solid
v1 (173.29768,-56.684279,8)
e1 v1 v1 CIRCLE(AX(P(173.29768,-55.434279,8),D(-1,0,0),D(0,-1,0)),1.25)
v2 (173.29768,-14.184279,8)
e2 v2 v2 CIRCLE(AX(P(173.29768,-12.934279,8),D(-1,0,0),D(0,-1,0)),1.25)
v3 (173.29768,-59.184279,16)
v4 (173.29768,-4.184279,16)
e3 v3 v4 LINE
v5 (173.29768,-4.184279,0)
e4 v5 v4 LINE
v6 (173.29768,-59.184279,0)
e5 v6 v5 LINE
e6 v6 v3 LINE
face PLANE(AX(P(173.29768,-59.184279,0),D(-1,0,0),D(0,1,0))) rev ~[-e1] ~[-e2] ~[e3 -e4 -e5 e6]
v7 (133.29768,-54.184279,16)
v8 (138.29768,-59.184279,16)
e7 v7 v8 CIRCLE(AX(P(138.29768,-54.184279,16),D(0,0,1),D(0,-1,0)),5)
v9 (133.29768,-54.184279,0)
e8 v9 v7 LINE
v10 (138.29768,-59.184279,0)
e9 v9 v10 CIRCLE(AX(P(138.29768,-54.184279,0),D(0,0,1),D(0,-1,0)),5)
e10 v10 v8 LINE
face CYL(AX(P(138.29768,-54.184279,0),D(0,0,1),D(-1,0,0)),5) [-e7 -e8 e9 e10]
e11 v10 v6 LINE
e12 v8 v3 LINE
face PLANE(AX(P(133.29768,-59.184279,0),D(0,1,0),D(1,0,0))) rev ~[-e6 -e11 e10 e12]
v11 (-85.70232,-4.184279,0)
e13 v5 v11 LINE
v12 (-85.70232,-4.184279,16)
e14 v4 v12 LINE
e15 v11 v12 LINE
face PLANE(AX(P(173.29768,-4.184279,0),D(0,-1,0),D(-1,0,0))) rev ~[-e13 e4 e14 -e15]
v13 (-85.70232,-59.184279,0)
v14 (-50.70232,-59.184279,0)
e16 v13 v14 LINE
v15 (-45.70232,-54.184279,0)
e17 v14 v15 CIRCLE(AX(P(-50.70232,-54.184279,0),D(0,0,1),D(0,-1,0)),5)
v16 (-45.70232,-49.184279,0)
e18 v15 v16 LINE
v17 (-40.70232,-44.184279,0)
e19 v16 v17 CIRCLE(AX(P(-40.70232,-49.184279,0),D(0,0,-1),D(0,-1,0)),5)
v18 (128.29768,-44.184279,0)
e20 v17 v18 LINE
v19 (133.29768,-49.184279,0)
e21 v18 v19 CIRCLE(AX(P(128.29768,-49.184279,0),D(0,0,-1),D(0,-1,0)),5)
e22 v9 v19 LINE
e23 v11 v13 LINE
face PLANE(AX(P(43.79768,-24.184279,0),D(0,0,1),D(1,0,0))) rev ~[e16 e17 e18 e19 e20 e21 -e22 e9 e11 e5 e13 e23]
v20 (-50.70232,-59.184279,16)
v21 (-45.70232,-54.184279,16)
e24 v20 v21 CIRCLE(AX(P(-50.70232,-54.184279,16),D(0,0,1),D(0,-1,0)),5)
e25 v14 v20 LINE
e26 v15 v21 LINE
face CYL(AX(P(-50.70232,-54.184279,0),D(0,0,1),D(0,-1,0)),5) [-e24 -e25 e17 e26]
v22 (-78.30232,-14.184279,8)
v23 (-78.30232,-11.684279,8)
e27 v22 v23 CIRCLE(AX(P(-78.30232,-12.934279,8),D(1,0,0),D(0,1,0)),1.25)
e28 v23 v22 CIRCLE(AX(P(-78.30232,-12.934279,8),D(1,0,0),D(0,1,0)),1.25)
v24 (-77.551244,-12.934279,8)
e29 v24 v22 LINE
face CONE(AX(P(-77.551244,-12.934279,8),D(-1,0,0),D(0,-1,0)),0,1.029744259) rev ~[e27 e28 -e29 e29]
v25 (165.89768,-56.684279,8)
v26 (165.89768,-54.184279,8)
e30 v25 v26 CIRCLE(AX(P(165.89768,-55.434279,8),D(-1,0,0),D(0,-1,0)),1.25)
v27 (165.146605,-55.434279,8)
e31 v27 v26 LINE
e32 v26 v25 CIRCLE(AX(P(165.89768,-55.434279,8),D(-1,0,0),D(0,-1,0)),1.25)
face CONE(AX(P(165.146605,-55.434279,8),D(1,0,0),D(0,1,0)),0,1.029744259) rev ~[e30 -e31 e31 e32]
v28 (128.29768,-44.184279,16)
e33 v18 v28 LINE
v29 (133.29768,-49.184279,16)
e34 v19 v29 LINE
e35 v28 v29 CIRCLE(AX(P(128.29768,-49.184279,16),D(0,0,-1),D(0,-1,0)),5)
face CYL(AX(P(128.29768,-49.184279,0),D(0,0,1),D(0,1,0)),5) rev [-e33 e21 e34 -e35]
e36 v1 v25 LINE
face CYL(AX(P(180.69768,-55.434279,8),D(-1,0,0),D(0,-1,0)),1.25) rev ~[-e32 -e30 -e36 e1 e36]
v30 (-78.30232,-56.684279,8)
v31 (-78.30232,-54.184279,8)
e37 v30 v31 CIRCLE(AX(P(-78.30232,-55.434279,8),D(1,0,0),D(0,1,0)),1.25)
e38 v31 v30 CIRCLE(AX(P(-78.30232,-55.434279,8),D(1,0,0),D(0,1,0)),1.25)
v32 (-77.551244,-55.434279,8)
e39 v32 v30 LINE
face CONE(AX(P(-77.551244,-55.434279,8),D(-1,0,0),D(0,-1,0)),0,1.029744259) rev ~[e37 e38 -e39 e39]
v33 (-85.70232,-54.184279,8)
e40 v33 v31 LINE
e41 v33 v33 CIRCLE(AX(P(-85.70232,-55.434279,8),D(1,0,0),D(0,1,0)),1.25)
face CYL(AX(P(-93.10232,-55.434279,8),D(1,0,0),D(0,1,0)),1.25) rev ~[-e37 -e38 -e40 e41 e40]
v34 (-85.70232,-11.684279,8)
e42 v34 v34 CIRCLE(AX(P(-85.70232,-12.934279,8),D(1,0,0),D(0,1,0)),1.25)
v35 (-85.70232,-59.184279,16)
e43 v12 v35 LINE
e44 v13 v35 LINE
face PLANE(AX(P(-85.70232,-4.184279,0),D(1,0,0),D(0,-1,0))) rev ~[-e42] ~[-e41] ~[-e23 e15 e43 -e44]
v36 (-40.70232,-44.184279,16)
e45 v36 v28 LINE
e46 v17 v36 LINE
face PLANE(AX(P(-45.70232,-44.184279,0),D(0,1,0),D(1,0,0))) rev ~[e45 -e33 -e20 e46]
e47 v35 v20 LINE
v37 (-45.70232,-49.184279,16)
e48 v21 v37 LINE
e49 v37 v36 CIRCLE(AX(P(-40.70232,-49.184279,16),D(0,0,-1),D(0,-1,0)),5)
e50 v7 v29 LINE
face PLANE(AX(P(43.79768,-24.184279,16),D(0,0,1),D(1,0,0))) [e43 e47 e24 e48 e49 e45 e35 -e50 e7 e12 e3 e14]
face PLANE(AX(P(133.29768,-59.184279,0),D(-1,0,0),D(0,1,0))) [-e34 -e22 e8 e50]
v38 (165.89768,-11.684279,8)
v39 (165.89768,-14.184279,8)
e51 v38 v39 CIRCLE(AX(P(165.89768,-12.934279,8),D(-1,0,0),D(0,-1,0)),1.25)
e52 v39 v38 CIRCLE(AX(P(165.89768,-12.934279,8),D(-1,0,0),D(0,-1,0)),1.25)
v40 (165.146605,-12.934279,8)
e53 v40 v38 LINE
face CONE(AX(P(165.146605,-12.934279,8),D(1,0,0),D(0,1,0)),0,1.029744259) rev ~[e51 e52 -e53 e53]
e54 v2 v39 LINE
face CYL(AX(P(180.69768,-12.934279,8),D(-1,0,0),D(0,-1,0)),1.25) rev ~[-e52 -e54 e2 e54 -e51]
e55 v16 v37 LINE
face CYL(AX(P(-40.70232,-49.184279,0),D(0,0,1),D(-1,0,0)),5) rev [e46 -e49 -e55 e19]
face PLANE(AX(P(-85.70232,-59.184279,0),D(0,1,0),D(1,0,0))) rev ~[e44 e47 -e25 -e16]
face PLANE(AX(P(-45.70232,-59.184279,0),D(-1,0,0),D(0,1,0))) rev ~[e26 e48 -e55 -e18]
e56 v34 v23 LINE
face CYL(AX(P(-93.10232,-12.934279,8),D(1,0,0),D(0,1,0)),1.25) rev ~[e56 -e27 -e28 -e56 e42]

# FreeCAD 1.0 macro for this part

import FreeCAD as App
import Part
import Sketcher


def edges_at(feature, points):
    """Names of the edges that pass closest to the given points."""
    edges = feature.Shape.Edges
    near = lambda p: min(range(len(edges)), key=lambda i: edges[i].distToShape(Part.Vertex(*p))[0])
    return sorted({f"Edge{near(p) + 1}" for p in points})

doc = App.newDocument("Part")
body = doc.addObject("PartDesign::Body", "Body")

# Sketch on XY plane
sketch1 = doc.addObject("Sketcher::SketchObject", "Sketch")
body.addObject(sketch1)
sketch1.AttachmentSupport = (doc.XY_Plane, [""])
sketch1.MapMode = "FlatFace"
sketch1.addGeometry(Part.LineSegment(App.Vector(173.29768, -4.184279, 0), App.Vector(-85.70232, -4.184279, 0)), False)
sketch1.addGeometry(Part.LineSegment(App.Vector(-85.70232, -4.184279, 0), App.Vector(-85.70232, -59.184279, 0)), False)
sketch1.addGeometry(Part.LineSegment(App.Vector(-85.70232, -59.184279, 0), App.Vector(-45.70232, -59.184279, 0)), False)
sketch1.addGeometry(Part.LineSegment(App.Vector(-45.70232, -59.184279, 0), App.Vector(-45.70232, -44.184279, 0)), False)
sketch1.addGeometry(Part.LineSegment(App.Vector(-45.70232, -44.184279, 0), App.Vector(133.29768, -44.184279, 0)), False)
sketch1.addGeometry(Part.LineSegment(App.Vector(133.29768, -44.184279, 0), App.Vector(133.29768, -59.184279, 0)), False)
sketch1.addGeometry(Part.LineSegment(App.Vector(133.29768, -59.184279, 0), App.Vector(173.29768, -59.184279, 0)), False)
sketch1.addGeometry(Part.LineSegment(App.Vector(173.29768, -59.184279, 0), App.Vector(173.29768, -4.184279, 0)), False)
sketch1.addConstraint(Sketcher.Constraint("Coincident", 0, 2, 1, 1))
sketch1.addConstraint(Sketcher.Constraint("Coincident", 1, 2, 2, 1))
sketch1.addConstraint(Sketcher.Constraint("Coincident", 2, 2, 3, 1))
sketch1.addConstraint(Sketcher.Constraint("Coincident", 3, 2, 4, 1))
sketch1.addConstraint(Sketcher.Constraint("Coincident", 4, 2, 5, 1))
sketch1.addConstraint(Sketcher.Constraint("Coincident", 5, 2, 6, 1))
sketch1.addConstraint(Sketcher.Constraint("Coincident", 6, 2, 7, 1))
sketch1.addConstraint(Sketcher.Constraint("Coincident", 7, 2, 0, 1))
sketch1.addConstraint(Sketcher.Constraint("Horizontal", 0))
sketch1.addConstraint(Sketcher.Constraint("Vertical", 1))
sketch1.addConstraint(Sketcher.Constraint("Horizontal", 2))
sketch1.addConstraint(Sketcher.Constraint("Vertical", 3))
sketch1.addConstraint(Sketcher.Constraint("Horizontal", 4))
sketch1.addConstraint(Sketcher.Constraint("Vertical", 5))
sketch1.addConstraint(Sketcher.Constraint("Horizontal", 6))
sketch1.addConstraint(Sketcher.Constraint("Vertical", 7))
sketch1.addConstraint(Sketcher.Constraint("Horizontal", 2, 2, 5, 2))
sketch1.addConstraint(Sketcher.Constraint("Equal", 2, 6))
sketch1.addConstraint(Sketcher.Constraint("DistanceX", 0, 2, 0, 1, 259.0))
sketch1.addConstraint(Sketcher.Constraint("DistanceX", 2, 1, 2, 2, 40.0))
sketch1.addConstraint(Sketcher.Constraint("DistanceY", 1, 2, 1, 1, 55.0))
sketch1.addConstraint(Sketcher.Constraint("DistanceY", 3, 1, 3, 2, 15.0))
sketch1.addConstraint(Sketcher.Constraint("DistanceX", 0, 2, -1, 1, 85.70232))
sketch1.addConstraint(Sketcher.Constraint("DistanceY", 0, 2, -1, 1, 4.184279))
pad1 = doc.addObject("PartDesign::Pad", "Pad")
body.addObject(pad1)
pad1.Profile = sketch1
pad1.Length = 16
doc.recompute()

fillet = doc.addObject("PartDesign::Fillet", "Fillet")
body.addObject(fillet)
fillet.Base = (pad1, edges_at(pad1, [
    (-45.702, -59.184, 8),
    (133.298, -59.184, 8),
    (133.298, -44.184, 8),
    (-45.702, -44.184, 8),
]))
fillet.Radius = 5

# Sketch on YZ plane
sketch2 = doc.addObject("Sketcher::SketchObject", "Sketch001")
body.addObject(sketch2)
sketch2.AttachmentSupport = (doc.YZ_Plane, [""])
sketch2.MapMode = "FlatFace"
sketch2.AttachmentOffset = App.Placement(App.Vector(0, 0, -85.70232), App.Rotation())
sketch2.addGeometry(Part.Circle(App.Vector(-12.934279, 8, 0), App.Vector(0, 0, 1), 1.25), False)
sketch2.addGeometry(Part.Circle(App.Vector(-55.434279, 8, 0), App.Vector(0, 0, 1), 1.25), False)
sketch2.addConstraint(Sketcher.Constraint("Equal", 0, 1))
sketch2.addConstraint(Sketcher.Constraint("Horizontal", 0, 3, 1, 3))
sketch2.addConstraint(Sketcher.Constraint("Diameter", 0, 2.5))
sketch2.addConstraint(Sketcher.Constraint("DistanceY", -1, 1, 0, 3, 8.0))
sketch2.addConstraint(Sketcher.Constraint("DistanceX", 1, 3, 0, 3, 42.5))
sketch2.addConstraint(Sketcher.Constraint("DistanceX", 0, 3, -1, 1, 12.934279))
doc.recompute()
hole = doc.addObject("PartDesign::Hole", "Hole")
body.addObject(hole)
hole.Profile = sketch2
hole.ThreadType = "None"
hole.Diameter = 2.5
hole.DepthType = "Dimension"
hole.Depth = 7.4
hole.DrillPoint = "Angled"
hole.DrillPointAngle = 118
hole.Reversed = True

# Sketch on YZ plane
sketch3 = doc.addObject("Sketcher::SketchObject", "Sketch002")
body.addObject(sketch3)
sketch3.AttachmentSupport = (doc.YZ_Plane, [""])
sketch3.MapMode = "FlatFace"
sketch3.AttachmentOffset = App.Placement(App.Vector(0, 0, 173.29768), App.Rotation())
sketch3.addGeometry(Part.Circle(App.Vector(-12.934279, 8, 0), App.Vector(0, 0, 1), 1.25), False)
sketch3.addGeometry(Part.Circle(App.Vector(-55.434279, 8, 0), App.Vector(0, 0, 1), 1.25), False)
sketch3.addConstraint(Sketcher.Constraint("Equal", 0, 1))
sketch3.addConstraint(Sketcher.Constraint("Horizontal", 0, 3, 1, 3))
sketch3.addConstraint(Sketcher.Constraint("Diameter", 0, 2.5))
sketch3.addConstraint(Sketcher.Constraint("DistanceY", -1, 1, 0, 3, 8.0))
sketch3.addConstraint(Sketcher.Constraint("DistanceX", 1, 3, 0, 3, 42.5))
sketch3.addConstraint(Sketcher.Constraint("DistanceX", 0, 3, -1, 1, 12.934279))
doc.recompute()
hole2 = doc.addObject("PartDesign::Hole", "Hole001")
body.addObject(hole2)
hole2.Profile = sketch3
hole2.ThreadType = "None"
hole2.Diameter = 2.5
hole2.DepthType = "Dimension"
hole2.Depth = 7.4
hole2.DrillPoint = "Angled"
hole2.DrillPointAngle = 118

doc.recompute()
